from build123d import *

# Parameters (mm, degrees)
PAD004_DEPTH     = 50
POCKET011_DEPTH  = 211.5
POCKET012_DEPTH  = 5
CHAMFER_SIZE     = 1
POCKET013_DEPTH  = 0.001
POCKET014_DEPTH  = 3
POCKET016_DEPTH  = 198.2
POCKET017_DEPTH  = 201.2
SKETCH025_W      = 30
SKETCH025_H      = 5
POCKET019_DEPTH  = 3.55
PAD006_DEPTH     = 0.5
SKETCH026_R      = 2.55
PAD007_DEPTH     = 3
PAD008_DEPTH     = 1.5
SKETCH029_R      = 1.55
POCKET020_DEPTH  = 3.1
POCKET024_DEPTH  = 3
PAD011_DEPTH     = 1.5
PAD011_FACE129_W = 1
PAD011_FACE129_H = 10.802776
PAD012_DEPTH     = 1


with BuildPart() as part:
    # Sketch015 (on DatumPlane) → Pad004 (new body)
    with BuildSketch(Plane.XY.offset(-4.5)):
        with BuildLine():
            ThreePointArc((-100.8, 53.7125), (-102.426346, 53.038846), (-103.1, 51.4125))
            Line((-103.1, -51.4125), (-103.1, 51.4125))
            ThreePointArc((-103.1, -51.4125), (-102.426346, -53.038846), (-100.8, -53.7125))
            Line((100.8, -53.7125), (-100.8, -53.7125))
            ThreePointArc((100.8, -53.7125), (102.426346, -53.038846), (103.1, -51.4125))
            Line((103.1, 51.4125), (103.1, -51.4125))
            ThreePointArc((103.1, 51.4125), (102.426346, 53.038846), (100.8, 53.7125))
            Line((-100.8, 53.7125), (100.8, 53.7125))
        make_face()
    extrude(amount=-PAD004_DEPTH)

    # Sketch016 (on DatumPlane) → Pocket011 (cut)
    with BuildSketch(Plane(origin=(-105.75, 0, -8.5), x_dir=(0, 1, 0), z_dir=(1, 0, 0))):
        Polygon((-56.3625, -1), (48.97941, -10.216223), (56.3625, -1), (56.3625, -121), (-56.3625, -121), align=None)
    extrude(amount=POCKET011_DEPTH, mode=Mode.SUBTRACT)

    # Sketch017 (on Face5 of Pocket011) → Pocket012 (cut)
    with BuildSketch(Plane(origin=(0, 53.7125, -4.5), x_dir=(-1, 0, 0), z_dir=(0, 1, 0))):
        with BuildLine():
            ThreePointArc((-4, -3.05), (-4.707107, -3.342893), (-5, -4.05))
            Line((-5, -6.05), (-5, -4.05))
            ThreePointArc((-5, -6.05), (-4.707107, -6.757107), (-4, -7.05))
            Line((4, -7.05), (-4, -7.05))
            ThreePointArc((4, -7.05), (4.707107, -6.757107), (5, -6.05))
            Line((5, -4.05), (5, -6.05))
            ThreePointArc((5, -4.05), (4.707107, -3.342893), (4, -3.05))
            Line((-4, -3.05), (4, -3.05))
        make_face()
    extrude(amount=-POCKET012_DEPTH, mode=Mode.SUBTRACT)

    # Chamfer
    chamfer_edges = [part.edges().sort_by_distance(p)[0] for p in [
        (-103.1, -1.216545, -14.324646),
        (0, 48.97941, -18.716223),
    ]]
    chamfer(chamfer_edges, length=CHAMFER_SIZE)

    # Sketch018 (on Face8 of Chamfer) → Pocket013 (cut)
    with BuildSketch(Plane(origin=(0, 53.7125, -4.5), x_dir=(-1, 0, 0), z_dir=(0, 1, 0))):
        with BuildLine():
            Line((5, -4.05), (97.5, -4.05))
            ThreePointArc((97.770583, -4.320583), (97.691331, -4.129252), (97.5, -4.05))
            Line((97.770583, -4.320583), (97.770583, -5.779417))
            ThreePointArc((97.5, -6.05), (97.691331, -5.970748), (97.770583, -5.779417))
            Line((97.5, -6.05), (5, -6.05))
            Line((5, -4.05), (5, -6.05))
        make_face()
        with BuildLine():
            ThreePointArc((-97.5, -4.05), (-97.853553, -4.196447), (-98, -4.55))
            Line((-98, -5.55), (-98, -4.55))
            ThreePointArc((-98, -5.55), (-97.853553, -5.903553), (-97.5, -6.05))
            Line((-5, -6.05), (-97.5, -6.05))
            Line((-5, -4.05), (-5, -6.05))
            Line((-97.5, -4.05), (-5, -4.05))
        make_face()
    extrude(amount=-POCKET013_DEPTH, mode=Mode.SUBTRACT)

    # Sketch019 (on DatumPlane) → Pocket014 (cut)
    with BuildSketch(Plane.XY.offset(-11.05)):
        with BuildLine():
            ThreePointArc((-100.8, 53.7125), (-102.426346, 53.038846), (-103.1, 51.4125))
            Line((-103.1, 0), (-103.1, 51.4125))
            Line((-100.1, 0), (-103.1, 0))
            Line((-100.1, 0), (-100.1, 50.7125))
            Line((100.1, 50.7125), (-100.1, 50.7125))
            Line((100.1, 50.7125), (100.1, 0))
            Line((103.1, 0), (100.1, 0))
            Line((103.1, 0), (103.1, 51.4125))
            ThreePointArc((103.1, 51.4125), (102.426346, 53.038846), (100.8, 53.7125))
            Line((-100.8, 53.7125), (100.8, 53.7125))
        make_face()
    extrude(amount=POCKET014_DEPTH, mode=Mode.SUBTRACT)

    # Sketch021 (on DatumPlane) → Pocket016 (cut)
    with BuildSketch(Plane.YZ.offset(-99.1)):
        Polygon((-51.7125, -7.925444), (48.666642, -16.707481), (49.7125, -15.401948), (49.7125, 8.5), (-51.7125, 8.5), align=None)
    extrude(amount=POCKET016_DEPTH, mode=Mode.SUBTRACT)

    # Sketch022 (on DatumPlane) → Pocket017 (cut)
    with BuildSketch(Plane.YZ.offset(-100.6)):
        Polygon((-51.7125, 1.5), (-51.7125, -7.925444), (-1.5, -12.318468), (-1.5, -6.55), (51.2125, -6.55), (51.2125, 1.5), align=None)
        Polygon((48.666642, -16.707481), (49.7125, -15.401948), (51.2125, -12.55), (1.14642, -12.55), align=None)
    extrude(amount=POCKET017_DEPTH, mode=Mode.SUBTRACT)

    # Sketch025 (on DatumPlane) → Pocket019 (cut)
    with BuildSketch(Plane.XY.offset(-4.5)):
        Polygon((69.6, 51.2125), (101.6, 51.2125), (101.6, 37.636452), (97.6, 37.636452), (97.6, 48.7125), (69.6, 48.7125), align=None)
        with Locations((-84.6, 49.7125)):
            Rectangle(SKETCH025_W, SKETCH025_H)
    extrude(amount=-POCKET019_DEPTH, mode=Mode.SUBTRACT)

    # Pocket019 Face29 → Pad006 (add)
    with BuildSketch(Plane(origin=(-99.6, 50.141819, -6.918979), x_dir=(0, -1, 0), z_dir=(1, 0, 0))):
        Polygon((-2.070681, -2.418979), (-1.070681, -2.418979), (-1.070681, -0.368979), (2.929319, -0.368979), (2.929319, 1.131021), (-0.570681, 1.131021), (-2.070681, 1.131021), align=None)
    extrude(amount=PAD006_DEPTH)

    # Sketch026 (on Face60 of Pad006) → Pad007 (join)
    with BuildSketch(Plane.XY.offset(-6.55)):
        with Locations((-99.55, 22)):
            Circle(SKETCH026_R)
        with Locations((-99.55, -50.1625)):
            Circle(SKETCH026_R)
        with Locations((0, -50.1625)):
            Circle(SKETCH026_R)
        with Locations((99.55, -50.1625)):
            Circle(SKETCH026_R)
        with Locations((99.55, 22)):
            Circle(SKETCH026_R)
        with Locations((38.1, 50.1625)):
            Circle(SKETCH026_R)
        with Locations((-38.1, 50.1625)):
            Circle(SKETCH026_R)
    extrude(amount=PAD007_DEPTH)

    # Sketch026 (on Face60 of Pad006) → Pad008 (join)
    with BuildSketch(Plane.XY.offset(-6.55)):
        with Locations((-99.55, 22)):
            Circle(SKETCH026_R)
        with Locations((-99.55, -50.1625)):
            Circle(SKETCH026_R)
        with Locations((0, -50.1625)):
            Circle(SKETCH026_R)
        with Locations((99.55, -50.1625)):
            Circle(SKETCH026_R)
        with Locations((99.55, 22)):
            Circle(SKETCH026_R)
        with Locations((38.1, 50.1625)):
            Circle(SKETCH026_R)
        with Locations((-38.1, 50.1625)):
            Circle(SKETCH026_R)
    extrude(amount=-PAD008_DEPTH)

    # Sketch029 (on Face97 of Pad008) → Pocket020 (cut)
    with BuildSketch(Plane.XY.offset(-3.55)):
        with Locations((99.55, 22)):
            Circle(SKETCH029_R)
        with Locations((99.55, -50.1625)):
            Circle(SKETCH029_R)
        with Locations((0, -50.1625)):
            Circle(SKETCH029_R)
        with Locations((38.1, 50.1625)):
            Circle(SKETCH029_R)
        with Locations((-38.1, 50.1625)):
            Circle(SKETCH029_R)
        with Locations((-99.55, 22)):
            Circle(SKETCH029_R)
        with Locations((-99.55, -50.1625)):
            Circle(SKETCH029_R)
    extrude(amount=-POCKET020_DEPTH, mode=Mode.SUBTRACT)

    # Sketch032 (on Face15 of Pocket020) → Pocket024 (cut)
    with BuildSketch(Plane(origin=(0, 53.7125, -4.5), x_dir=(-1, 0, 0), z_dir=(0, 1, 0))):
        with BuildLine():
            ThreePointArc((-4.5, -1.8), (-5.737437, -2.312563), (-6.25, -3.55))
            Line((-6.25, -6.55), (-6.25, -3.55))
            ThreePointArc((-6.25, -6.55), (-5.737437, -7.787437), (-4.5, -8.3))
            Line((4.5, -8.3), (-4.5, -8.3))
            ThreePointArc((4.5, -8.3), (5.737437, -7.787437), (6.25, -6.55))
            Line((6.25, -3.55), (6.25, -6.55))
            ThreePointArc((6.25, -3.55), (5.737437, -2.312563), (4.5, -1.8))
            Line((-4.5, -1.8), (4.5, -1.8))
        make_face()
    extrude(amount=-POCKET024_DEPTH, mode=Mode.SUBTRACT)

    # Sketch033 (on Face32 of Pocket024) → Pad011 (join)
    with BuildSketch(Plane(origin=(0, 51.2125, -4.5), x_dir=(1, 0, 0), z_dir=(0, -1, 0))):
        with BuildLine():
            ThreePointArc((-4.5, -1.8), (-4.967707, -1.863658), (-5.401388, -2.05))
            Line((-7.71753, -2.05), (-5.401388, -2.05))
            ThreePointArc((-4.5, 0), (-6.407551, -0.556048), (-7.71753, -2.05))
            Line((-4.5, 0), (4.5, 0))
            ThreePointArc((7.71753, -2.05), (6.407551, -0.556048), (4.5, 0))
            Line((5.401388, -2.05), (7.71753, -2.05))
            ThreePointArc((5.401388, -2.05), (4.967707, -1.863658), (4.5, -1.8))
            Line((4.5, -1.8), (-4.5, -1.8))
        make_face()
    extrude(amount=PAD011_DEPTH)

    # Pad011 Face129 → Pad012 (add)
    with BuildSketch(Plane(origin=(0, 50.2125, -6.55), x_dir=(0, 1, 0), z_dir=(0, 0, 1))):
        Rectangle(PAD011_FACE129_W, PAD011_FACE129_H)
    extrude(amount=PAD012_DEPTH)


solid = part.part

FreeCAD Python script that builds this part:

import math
import FreeCAD as App
import Part
import Sketcher

V = App.Vector
Q = App.Units.Quantity


def edges_at(feature, points):
    """Names of the edges that pass closest to the given points."""
    edges = feature.Shape.Edges
    near = lambda p: min(range(len(edges)), key=lambda i: edges[i].distToShape(Part.Vertex(*p))[0])
    return sorted({f"Edge{near(p) + 1}" for p in points})

doc = App.newDocument("Part")
params = doc.addObject("Spreadsheet::Sheet", "Params")
for row, (alias, value) in enumerate([
    ("sketch1_radius", "2.299999 mm"),
    ("sketch1_width", "201.6 mm"),
    ("pad1_length", "50 mm"),
    ("sketch2_height", "120 mm"),
    ("pocket1_length", "211.5 mm"),
    ("sketch3_radius", "0.999999 mm"),
    ("sketch3_width", "8 mm"),
    ("sketch3_height", "2 mm"),
    ("pocket2_length", "5 mm"),
    ("chamfer_size", "1 mm"),
    ("sketch4_radius", "0.500001 mm"),
    ("sketch4_height", "2 mm"),
    ("sketch4_height2", "1 mm"),
    ("sketch4_width", "92.5 mm"),
    ("pocket3_length", "0.001 mm"),
    ("sketch5_radius", "2.299999 mm"),
    ("sketch5_width", "3 mm"),
    ("sketch5_width2", "200.2 mm"),
    ("pocket4_length", "3 mm"),
    ("pocket5_length", "198.2 mm"),
    ("sketch7_height", "8.05 mm"),
    ("pocket6_length", "201.2 mm"),
    ("sketch8_width", "32 mm"),
    ("sketch8_width2", "28 mm"),
    ("sketch8_width3", "30 mm"),
    ("sketch8_height", "5 mm"),
    ("sketch8_height2", "2.5 mm"),
    ("pocket7_length", "3.55 mm"),
    ("sketch9_width", "1 mm"),
    ("sketch9_width2", "4 mm"),
    ("sketch9_height", "1.5 mm"),
    ("sketch9_height2", "2.05 mm"),
    ("pad2_length", "0.5 mm"),
    ("sketch10_diameter", "5.1 mm"),
    ("pad3_length", "3 mm"),
    ("sketch11_diameter", "5.1 mm"),
    ("pad4_length", "1.5 mm"),
    ("sketch12_diameter", "3.1 mm"),
    ("pocket8_length", "3.1 mm"),
    ("sketch13_width", "9 mm"),
    ("sketch13_height", "3 mm"),
    ("sketch13_radius", "1.75 mm"),
    ("pocket9_length", "3 mm"),
    ("sketch14_width", "9 mm"),
    ("sketch14_radius", "3.55 mm"),
    ("pad5_length", "1.5 mm"),
    ("sketch15_height", "1 mm"),
    ("pad6_length", "1 mm"),
], start=1):
    params.set(f"A{row}", alias)
    params.set(f"B{row}", "=" + value)
    params.setAlias(f"B{row}", alias)

body = doc.addObject("PartDesign::Body", "Body")

sketch1 = body.newObject("Sketcher::SketchObject", "Sketch")
sketch1.AttachmentSupport = (doc.getObject("XY_Plane"), [""])
sketch1.MapMode = "FlatFace"
sketch1.AttachmentOffset = App.Placement(V(0, 0, -4.5), App.Rotation())
sketch1.addGeometry([
    Part.ArcOfCircle(Part.Circle(V(-100.800001, 51.412501, 0), V(0, 0, 1), 2.299999), math.radians(89.999966), math.radians(180.000034)),
    Part.LineSegment(V(-103.1, 51.4125, 0), V(-103.1, -51.4125, 0)),
    Part.ArcOfCircle(Part.Circle(V(-100.800001, -51.412501, 0), V(0, 0, 1), 2.299999), math.radians(179.999966), math.radians(270.000034)),
    Part.LineSegment(V(-100.8, -53.7125, 0), V(100.8, -53.7125, 0)),
    Part.ArcOfCircle(Part.Circle(V(100.800001, -51.412501, 0), V(0, 0, 1), 2.299999), math.radians(-90.000034), math.radians(0.000034)),
    Part.LineSegment(V(103.1, -51.4125, 0), V(103.1, 51.4125, 0)),
    Part.ArcOfCircle(Part.Circle(V(100.800001, 51.412501, 0), V(0, 0, 1), 2.299999), math.radians(-0.000034), math.radians(90.000034)),
    Part.LineSegment(V(100.8, 53.7125, 0), V(-100.8, 53.7125, 0)),
], False)
sketch1.addConstraint([
    Sketcher.Constraint("Tangent", 0, 2, 1, 1),
    Sketcher.Constraint("Tangent", 1, 2, 2, 1),
    Sketcher.Constraint("Tangent", 2, 2, 3, 1),
    Sketcher.Constraint("Tangent", 3, 2, 4, 1),
    Sketcher.Constraint("Tangent", 4, 2, 5, 1),
    Sketcher.Constraint("Tangent", 5, 2, 6, 1),
    Sketcher.Constraint("Tangent", 6, 2, 7, 1),
    Sketcher.Constraint("Tangent", 7, 2, 0, 1),
    Sketcher.Constraint("Vertical", 1),
    Sketcher.Constraint("Horizontal", 3),
    Sketcher.Constraint("Vertical", 5),
    Sketcher.Constraint("Horizontal", 7),
    Sketcher.Constraint("Equal", 0, 2),
    Sketcher.Constraint("Equal", 2, 4),
    Sketcher.Constraint("Equal", 4, 6),
    Sketcher.Constraint("Symmetric", 0, 3, 4, 3, -1, 1),
    Sketcher.Constraint("Radius", 0, Q("2.299999 mm")),
    Sketcher.Constraint("DistanceX", 3, 1, 3, 2, Q("201.6 mm")),
    Sketcher.Constraint("DistanceY", 1, 2, 1, 1, Q("102.825 mm")),
])
sketch1.setExpression("Constraints[16]", "Params.sketch1_radius")
sketch1.setExpression("Constraints[17]", "Params.sketch1_width")
pad1 = body.newObject("PartDesign::Pad", "Pad")
pad1.Profile = sketch1
pad1.setExpression("Length", "Params.pad1_length")
pad1.Reversed = True

sketch2 = body.newObject("Sketcher::SketchObject", "Sketch001")
sketch2.AttachmentSupport = (doc.getObject("YZ_Plane"), [""])
sketch2.MapMode = "FlatFace"
sketch2.AttachmentOffset = App.Placement(V(0, 0, -105.75), App.Rotation())
sketch2.addGeometry([
    Part.LineSegment(V(48.97941, -18.716223, 0), V(-56.3625, -9.5, 0)),
    Part.LineSegment(V(-56.3625, -9.5, 0), V(-56.3625, -129.5, 0)),
    Part.LineSegment(V(-56.3625, -129.5, 0), V(56.3625, -129.5, 0)),
    Part.LineSegment(V(56.3625, -129.5, 0), V(56.3625, -9.5, 0)),
    Part.LineSegment(V(56.3625, -9.5, 0), V(48.97941, -18.716223, 0)),
], False)
sketch2.addConstraint([
    Sketcher.Constraint("Coincident", 0, 2, 1, 1),
    Sketcher.Constraint("Coincident", 1, 2, 2, 1),
    Sketcher.Constraint("Coincident", 2, 2, 3, 1),
    Sketcher.Constraint("Coincident", 3, 2, 4, 1),
    Sketcher.Constraint("Coincident", 4, 2, 0, 1),
    Sketcher.Constraint("Vertical", 1),
    Sketcher.Constraint("Horizontal", 2),
    Sketcher.Constraint("Vertical", 3),
    Sketcher.Constraint("Symmetric", 0, 2, 3, 2, -2),
    Sketcher.Constraint("DistanceY", 1, 2, 1, 1, Q("120 mm")),
    Sketcher.Constraint("Angle", 0, Q("175 deg")),
    Sketcher.Constraint("DistanceY", 0, 2, -1, 1, Q("9.5 mm")),
    Sketcher.Constraint("DistanceX", 2, 1, 2, 2, Q("112.725 mm")),
    Sketcher.Constraint("Distance", 0, Q("105.744299 mm")),
])
sketch2.setExpression("Constraints[9]", "Params.sketch2_height")
pocket1 = body.newObject("PartDesign::Pocket", "Pocket")
pocket1.Profile = sketch2
pocket1.setExpression("Length", "Params.pocket1_length")
pocket1.Reversed = True

sketch3 = body.newObject("Sketcher::SketchObject", "Sketch002")
sketch3.AttachmentSupport = (doc.getObject("XZ_Plane"), [""])
sketch3.MapMode = "FlatFace"
sketch3.AttachmentOffset = App.Placement(V(0, 0, -53.7125), App.Rotation())
sketch3.addGeometry([
    Part.ArcOfCircle(Part.Circle(V(4.000001, -8.549999, 0), V(0, 0, 1), 0.999999), math.radians(-0.000043), math.radians(90.000043)),
    Part.LineSegment(V(5, -8.55, 0), V(5, -10.55, 0)),
    Part.ArcOfCircle(Part.Circle(V(4.000001, -10.550001, 0), V(0, 0, 1), 0.999999), math.radians(-90.000043), math.radians(0.000043)),
    Part.LineSegment(V(4, -11.55, 0), V(-4, -11.55, 0)),
    Part.ArcOfCircle(Part.Circle(V(-4.000001, -10.550001, 0), V(0, 0, 1), 0.999999), math.radians(179.999957), math.radians(270.000043)),
    Part.LineSegment(V(-5, -10.55, 0), V(-5, -8.55, 0)),
    Part.ArcOfCircle(Part.Circle(V(-4.000001, -8.549999, 0), V(0, 0, 1), 0.999999), math.radians(89.999957), math.radians(180.000043)),
    Part.LineSegment(V(-4, -7.55, 0), V(4, -7.55, 0)),
], False)
sketch3.addConstraint([
    Sketcher.Constraint("Tangent", 0, 1, 1, 1),
    Sketcher.Constraint("Tangent", 1, 2, 2, 2),
    Sketcher.Constraint("Tangent", 2, 1, 3, 1),
    Sketcher.Constraint("Tangent", 3, 2, 4, 2),
    Sketcher.Constraint("Tangent", 4, 1, 5, 1),
    Sketcher.Constraint("Tangent", 5, 2, 6, 2),
    Sketcher.Constraint("Tangent", 6, 1, 7, 1),
    Sketcher.Constraint("Tangent", 7, 2, 0, 2),
    Sketcher.Constraint("Vertical", 1),
    Sketcher.Constraint("Horizontal", 3),
    Sketcher.Constraint("Vertical", 5),
    Sketcher.Constraint("Horizontal", 7),
    Sketcher.Constraint("Equal", 0, 2),
    Sketcher.Constraint("Equal", 2, 4),
    Sketcher.Constraint("Equal", 4, 6),
    Sketcher.Constraint("Radius", 0, Q("0.999999 mm")),
    Sketcher.Constraint("DistanceX", 3, 2, 3, 1, Q("8 mm")),
    Sketcher.Constraint("DistanceY", 1, 2, 1, 1, Q("2 mm")),
    Sketcher.Constraint("DistanceX", -1, 1, 0, 3, Q("4.000001 mm")),
    Sketcher.Constraint("DistanceY", 0, 3, -1, 1, Q("8.549999 mm")),
])
sketch3.setExpression("Constraints[15]", "Params.sketch3_radius")
sketch3.setExpression("Constraints[16]", "Params.sketch3_width")
sketch3.setExpression("Constraints[17]", "Params.sketch3_height")
pocket2 = body.newObject("PartDesign::Pocket", "Pocket001")
pocket2.Profile = sketch3
pocket2.setExpression("Length", "Params.pocket2_length")
pocket2.Reversed = True
doc.recompute()

chamfer = body.newObject("PartDesign::Chamfer", "Chamfer")
chamfer.Base = (pocket2, edges_at(pocket2, [(-103.1, -1.217, -14.325), (0, 48.979, -18.716)]))
chamfer.setExpression("Size", "Params.chamfer_size")

sketch4 = body.newObject("Sketcher::SketchObject", "Sketch003")
sketch4.AttachmentSupport = (doc.getObject("XZ_Plane"), [""])
sketch4.MapMode = "FlatFace"
sketch4.AttachmentOffset = App.Placement(V(0, 0, -53.7125), App.Rotation())
sketch4.addGeometry([
    Part.LineSegment(V(-97.5, -8.55, 0), V(-5, -8.55, 0)),
    Part.LineSegment(V(-5, -8.55, 0), V(-5, -10.55, 0)),
    Part.LineSegment(V(-5, -10.55, 0), V(-97.5, -10.55, 0)),
    Part.ArcOfCircle(Part.Circle(V(-97.5, -10.279417, 0), V(0, 0, 1), 0.270583), math.radians(-179.999946), math.radians(-90.000054)),
    Part.LineSegment(V(-97.770583, -10.279417, 0), V(-97.770583, -8.820583, 0)),
    Part.ArcOfCircle(Part.Circle(V(-97.5, -8.820583, 0), V(0, 0, 1), 0.270583), math.radians(90.000054), math.radians(179.999946)),
    Part.ArcOfCircle(Part.Circle(V(97.499999, -9.050001, 0), V(0, 0, 1), 0.500001), math.radians(0.000153), math.radians(89.999847)),
    Part.LineSegment(V(98, -9.05, 0), V(98, -10.05, 0)),
    Part.ArcOfCircle(Part.Circle(V(97.499999, -10.049999, 0), V(0, 0, 1), 0.500001), math.radians(-89.999847), math.radians(-0.000153)),
    Part.LineSegment(V(97.5, -10.55, 0), V(5, -10.55, 0)),
    Part.LineSegment(V(5, -10.55, 0), V(5, -8.55, 0)),
    Part.LineSegment(V(5, -8.55, 0), V(97.5, -8.55, 0)),
], False)
sketch4.addConstraint([
    Sketcher.Constraint("Coincident", 0, 2, 1, 1),
    Sketcher.Constraint("Coincident", 1, 2, 2, 1),
    Sketcher.Constraint("Tangent", 2, 2, 3, 2),
    Sketcher.Constraint("Tangent", 3, 1, 4, 1),
    Sketcher.Constraint("Tangent", 4, 2, 5, 2),
    Sketcher.Constraint("Tangent", 5, 1, 0, 1),
    Sketcher.Constraint("Coincident", 6, 1, 7, 1),
    Sketcher.Constraint("Coincident", 7, 2, 8, 2),
    Sketcher.Constraint("Coincident", 8, 1, 9, 1),
    Sketcher.Constraint("Coincident", 9, 2, 10, 1),
    Sketcher.Constraint("Coincident", 10, 2, 11, 1),
    Sketcher.Constraint("Coincident", 11, 2, 6, 2),
    Sketcher.Constraint("Horizontal", 0),
    Sketcher.Constraint("Vertical", 1),
    Sketcher.Constraint("Horizontal", 2),
    Sketcher.Constraint("Vertical", 4),
    Sketcher.Constraint("Vertical", 7),
    Sketcher.Constraint("Horizontal", 9),
    Sketcher.Constraint("Vertical", 10),
    Sketcher.Constraint("Horizontal", 11),
    Sketcher.Constraint("Equal", 3, 5),
    Sketcher.Constraint("Equal", 6, 8),
    Sketcher.Constraint("Symmetric", 2, 2, 8, 1, -2),
    Sketcher.Constraint("Symmetric", 0, 2, 10, 2, -2),
    Sketcher.Constraint("Horizontal", 8, 3, 7, 2),
    Sketcher.Constraint("Vertical", 6, 3, 8, 1),
    Sketcher.Constraint("Vertical", 8, 1, 11, 2),
    Sketcher.Constraint("Radius", 6, Q("0.500001 mm")),
    Sketcher.Constraint("DistanceY", 1, 2, 1, 1, Q("2 mm")),
    Sketcher.Constraint("DistanceY", 7, 2, 7, 1, Q("1 mm")),
    Sketcher.Constraint("DistanceX", 0, 1, 0, 2, Q("92.5 mm")),
    Sketcher.Constraint("DistanceX", 0, 2, -1, 1, Q("5 mm")),
    Sketcher.Constraint("DistanceY", 6, 3, -1, 1, Q("9.050001 mm")),
    Sketcher.Constraint("Radius", 3, Q("0.270583 mm")),
])
sketch4.setExpression("Constraints[27]", "Params.sketch4_radius")
sketch4.setExpression("Constraints[28]", "Params.sketch4_height")
sketch4.setExpression("Constraints[29]", "Params.sketch4_height2")
sketch4.setExpression("Constraints[30]", "Params.sketch4_width")
pocket3 = body.newObject("PartDesign::Pocket", "Pocket002")
pocket3.Profile = sketch4
pocket3.setExpression("Length", "Params.pocket3_length")
pocket3.Reversed = True

sketch5 = body.newObject("Sketcher::SketchObject", "Sketch004")
sketch5.AttachmentSupport = (doc.getObject("XY_Plane"), [""])
sketch5.MapMode = "FlatFace"
sketch5.AttachmentOffset = App.Placement(V(0, 0, -11.05), App.Rotation())
sketch5.addGeometry([
    Part.ArcOfCircle(Part.Circle(V(-100.800001, 51.412501, 0), V(0, 0, 1), 2.299999), math.radians(89.999966), math.radians(180.000034)),
    Part.LineSegment(V(-103.1, 51.4125, 0), V(-103.1, 0, 0)),
    Part.LineSegment(V(-103.1, 0, 0), V(-100.1, 0, 0)),
    Part.LineSegment(V(-100.1, 0, 0), V(-100.1, 50.7125, 0)),
    Part.LineSegment(V(-100.1, 50.7125, 0), V(100.1, 50.7125, 0)),
    Part.LineSegment(V(100.1, 50.7125, 0), V(100.1, 0, 0)),
    Part.LineSegment(V(100.1, 0, 0), V(103.1, 0, 0)),
    Part.LineSegment(V(103.1, 0, 0), V(103.1, 51.4125, 0)),
    Part.ArcOfCircle(Part.Circle(V(100.800001, 51.412501, 0), V(0, 0, 1), 2.299999), math.radians(-0.000034), math.radians(90.000034)),
    Part.LineSegment(V(100.8, 53.7125, 0), V(-100.8, 53.7125, 0)),
], False)
sketch5.addConstraint([
    Sketcher.Constraint("Tangent", 0, 2, 1, 1),
    Sketcher.Constraint("Coincident", 1, 2, 2, 1),
    Sketcher.Constraint("Coincident", 2, 2, 3, 1),
    Sketcher.Constraint("Coincident", 3, 2, 4, 1),
    Sketcher.Constraint("Coincident", 4, 2, 5, 1),
    Sketcher.Constraint("Coincident", 5, 2, 6, 1),
    Sketcher.Constraint("Coincident", 6, 2, 7, 1),
    Sketcher.Constraint("Tangent", 7, 2, 8, 1),
    Sketcher.Constraint("Tangent", 8, 2, 9, 1),
    Sketcher.Constraint("Tangent", 9, 2, 0, 1),
    Sketcher.Constraint("Vertical", 1),
    Sketcher.Constraint("Horizontal", 2),
    Sketcher.Constraint("Vertical", 3),
    Sketcher.Constraint("Horizontal", 4),
    Sketcher.Constraint("Vertical", 5),
    Sketcher.Constraint("Horizontal", 6),
    Sketcher.Constraint("Vertical", 7),
    Sketcher.Constraint("Horizontal", 9),
    Sketcher.Constraint("Equal", 0, 8),
    Sketcher.Constraint("Symmetric", 2, 2, 5, 2, -1, 1),
    Sketcher.Constraint("Symmetric", 1, 2, 6, 2, -2),
    Sketcher.Constraint("Radius", 0, Q("2.299999 mm")),
    Sketcher.Constraint("DistanceX", 2, 1, 2, 2, Q("3 mm")),
    Sketcher.Constraint("DistanceX", 4, 1, 4, 2, Q("200.2 mm")),
    Sketcher.Constraint("DistanceY", 4, 2, 8, 2, Q("3 mm")),
    Sketcher.Constraint("DistanceY", 1, 2, 1, 1, Q("51.4125 mm")),
])
sketch5.setExpression("Constraints[21]", "Params.sketch5_radius")
sketch5.setExpression("Constraints[22]", "Params.sketch5_width")
sketch5.setExpression("Constraints[23]", "Params.sketch5_width2")
pocket4 = body.newObject("PartDesign::Pocket", "Pocket003")
pocket4.Profile = sketch5
pocket4.setExpression("Length", "Params.pocket4_length")
pocket4.Reversed = True

sketch6 = body.newObject("Sketcher::SketchObject", "Sketch005")
sketch6.AttachmentSupport = (doc.getObject("YZ_Plane"), [""])
sketch6.MapMode = "FlatFace"
sketch6.AttachmentOffset = App.Placement(V(0, 0, -99.1), App.Rotation())
sketch6.addGeometry([
    Part.LineSegment(V(-51.7125, -7.925444, 0), V(48.666642, -16.707481, 0)),
    Part.LineSegment(V(48.666642, -16.707481, 0), V(49.7125, -15.401948, 0)),
    Part.LineSegment(V(49.7125, -15.401948, 0), V(49.7125, 8.5, 0)),
    Part.LineSegment(V(49.7125, 8.5, 0), V(-51.7125, 8.5, 0)),
    Part.LineSegment(V(-51.7125, 8.5, 0), V(-51.7125, -7.925444, 0)),
], False)
sketch6.addConstraint([
    Sketcher.Constraint("Coincident", 0, 2, 1, 1),
    Sketcher.Constraint("Coincident", 1, 2, 2, 1),
    Sketcher.Constraint("Coincident", 2, 2, 3, 1),
    Sketcher.Constraint("Coincident", 3, 2, 4, 1),
    Sketcher.Constraint("Coincident", 4, 2, 0, 1),
    Sketcher.Constraint("Vertical", 2),
    Sketcher.Constraint("Horizontal", 3),
    Sketcher.Constraint("Vertical", 4),
    Sketcher.Constraint("Angle", 0, Q("-5 deg")),
    Sketcher.Constraint("DistanceY", -1, 1, 2, 2, Q("8.5 mm")),
    Sketcher.Constraint("DistanceX", 3, 2, 3, 1, Q("101.425 mm")),
    Sketcher.Constraint("DistanceY", 2, 1, 2, 2, Q("23.901948 mm")),
    Sketcher.Constraint("DistanceX", -1, 1, 1, 2, Q("49.7125 mm")),
    Sketcher.Constraint("DistanceY", 4, 2, 4, 1, Q("16.425444 mm")),
    Sketcher.Constraint("DistanceY", 0, 2, -1, 1, Q("16.707481 mm")),
])
pocket5 = body.newObject("PartDesign::Pocket", "Pocket004")
pocket5.Profile = sketch6
pocket5.setExpression("Length", "Params.pocket5_length")
pocket5.Reversed = True

sketch7 = body.newObject("Sketcher::SketchObject", "Sketch006")
sketch7.AttachmentSupport = (doc.getObject("YZ_Plane"), [""])
sketch7.MapMode = "FlatFace"
sketch7.AttachmentOffset = App.Placement(V(0, 0, -100.6), App.Rotation())
sketch7.addGeometry([
    Part.LineSegment(V(-51.7125, 1.5, 0), V(-51.7125, -7.925444, 0)),
    Part.LineSegment(V(-51.7125, -7.925444, 0), V(-1.5, -12.318468, 0)),
    Part.LineSegment(V(-1.5, -12.318468, 0), V(-1.5, -6.55, 0)),
    Part.LineSegment(V(-1.5, -6.55, 0), V(51.2125, -6.55, 0)),
    Part.LineSegment(V(51.2125, -6.55, 0), V(51.2125, 1.5, 0)),
    Part.LineSegment(V(51.2125, 1.5, 0), V(-51.7125, 1.5, 0)),
    Part.LineSegment(V(48.666642, -16.707481, 0), V(49.7125, -15.401948, 0)),
    Part.LineSegment(V(49.7125, -15.401948, 0), V(51.2125, -12.55, 0)),
    Part.LineSegment(V(51.2125, -12.55, 0), V(1.14642, -12.55, 0)),
    Part.LineSegment(V(1.14642, -12.55, 0), V(48.666642, -16.707481, 0)),
], False)
sketch7.addConstraint([
    Sketcher.Constraint("Coincident", 0, 2, 1, 1),
    Sketcher.Constraint("Coincident", 1, 2, 2, 1),
    Sketcher.Constraint("Coincident", 2, 2, 3, 1),
    Sketcher.Constraint("Coincident", 3, 2, 4, 1),
    Sketcher.Constraint("Coincident", 4, 2, 5, 1),
    Sketcher.Constraint("Coincident", 5, 2, 0, 1),
    Sketcher.Constraint("Coincident", 6, 2, 7, 1),
    Sketcher.Constraint("Coincident", 7, 2, 8, 1),
    Sketcher.Constraint("Coincident", 8, 2, 9, 1),
    Sketcher.Constraint("Coincident", 9, 2, 6, 1),
    Sketcher.Constraint("Vertical", 0),
    Sketcher.Constraint("Vertical", 2),
    Sketcher.Constraint("Horizontal", 3),
    Sketcher.Constraint("Vertical", 4),
    Sketcher.Constraint("Horizontal", 5),
    Sketcher.Constraint("Horizontal", 8),
    Sketcher.Constraint("Parallel", 1, 9),
    Sketcher.Constraint("Vertical", 4, 2, 7, 2),
    Sketcher.Constraint("Angle", 1, Q("-4.999999 deg")),
    Sketcher.Constraint("DistanceY", 7, 2, 3, 2, Q("6 mm")),
    Sketcher.Constraint("DistanceY", 4, 1, 4, 2, Q("8.05 mm")),
    Sketcher.Constraint("DistanceX", 1, 2, -1, 1, Q("1.5 mm")),
    Sketcher.Constraint("DistanceY", -1, 1, 4, 2, Q("1.5 mm")),
    Sketcher.Constraint("DistanceX", 6, 2, 3, 2, Q("1.5 mm")),
    Sketcher.Constraint("DistanceX", 5, 2, 5, 1, Q("102.925 mm")),
    Sketcher.Constraint("DistanceX", 3, 1, 3, 2, Q("52.7125 mm")),
    Sketcher.Constraint("DistanceX", 8, 2, 8, 1, Q("50.06608 mm")),
    Sketcher.Constraint("Distance", 7, Q("3.222361 mm")),
    Sketcher.Constraint("Distance", 9, Q("47.701742 mm")),
    Sketcher.Constraint("DistanceY", 0, 2, 0, 1, Q("9.425444 mm")),
])
sketch7.setExpression("Constraints[20]", "Params.sketch7_height")
pocket6 = body.newObject("PartDesign::Pocket", "Pocket005")
pocket6.Profile = sketch7
pocket6.setExpression("Length", "Params.pocket6_length")
pocket6.Reversed = True

sketch8 = body.newObject("Sketcher::SketchObject", "Sketch007")
sketch8.AttachmentSupport = (doc.getObject("XY_Plane"), [""])
sketch8.MapMode = "FlatFace"
sketch8.AttachmentOffset = App.Placement(V(0, 0, -4.5), App.Rotation())
sketch8.addGeometry([
    Part.LineSegment(V(101.6, 51.2125, 0), V(69.6, 51.2125, 0)),
    Part.LineSegment(V(69.6, 51.2125, 0), V(69.6, 48.7125, 0)),
    Part.LineSegment(V(69.6, 48.7125, 0), V(97.6, 48.7125, 0)),
    Part.LineSegment(V(97.6, 48.7125, 0), V(97.6, 37.636452, 0)),
    Part.LineSegment(V(97.6, 37.636452, 0), V(101.6, 37.636452, 0)),
    Part.LineSegment(V(101.6, 37.636452, 0), V(101.6, 51.2125, 0)),
    Part.LineSegment(V(-99.6, 52.2125, 0), V(-99.6, 47.2125, 0)),
    Part.LineSegment(V(-99.6, 47.2125, 0), V(-69.6, 47.2125, 0)),
    Part.LineSegment(V(-69.6, 47.2125, 0), V(-69.6, 52.2125, 0)),
    Part.LineSegment(V(-69.6, 52.2125, 0), V(-99.6, 52.2125, 0)),
], False)
sketch8.addConstraint([
    Sketcher.Constraint("Coincident", 0, 2, 1, 1),
    Sketcher.Constraint("Coincident", 1, 2, 2, 1),
    Sketcher.Constraint("Coincident", 2, 2, 3, 1),
    Sketcher.Constraint("Coincident", 3, 2, 4, 1),
    Sketcher.Constraint("Coincident", 4, 2, 5, 1),
    Sketcher.Constraint("Coincident", 5, 2, 0, 1),
    Sketcher.Constraint("Coincident", 6, 2, 7, 1),
    Sketcher.Constraint("Coincident", 7, 2, 8, 1),
    Sketcher.Constraint("Coincident", 8, 2, 9, 1),
    Sketcher.Constraint("Coincident", 9, 2, 6, 1),
    Sketcher.Constraint("Horizontal", 0),
    Sketcher.Constraint("Vertical", 1),
    Sketcher.Constraint("Horizontal", 2),
    Sketcher.Constraint("Vertical", 3),
    Sketcher.Constraint("Horizontal", 4),
    Sketcher.Constraint("Vertical", 5),
    Sketcher.Constraint("Vertical", 6),
    Sketcher.Constraint("Horizontal", 7),
    Sketcher.Constraint("Vertical", 8),
    Sketcher.Constraint("Horizontal", 9),
    Sketcher.Constraint("DistanceX", 0, 2, 0, 1, Q("32 mm")),
    Sketcher.Constraint("DistanceX", 2, 1, 2, 2, Q("28 mm")),
    Sketcher.Constraint("DistanceX", 7, 1, 7, 2, Q("30 mm")),
    Sketcher.Constraint("DistanceY", 6, 2, 6, 1, Q("5 mm")),
    Sketcher.Constraint("DistanceY", 1, 2, 1, 1, Q("2.5 mm")),
    Sketcher.Constraint("DistanceY", 6, 2, 0, 2, Q("4 mm")),
    Sketcher.Constraint("DistanceX", -1, 1, 0, 2, Q("69.6 mm")),
    Sketcher.Constraint("DistanceX", 6, 2, -1, 1, Q("99.6 mm")),
    Sketcher.Constraint("DistanceY", -1, 1, 0, 2, Q("51.2125 mm")),
    Sketcher.Constraint("DistanceY", 3, 2, 3, 1, Q("11.076048 mm")),
])
sketch8.setExpression("Constraints[20]", "Params.sketch8_width")
sketch8.setExpression("Constraints[21]", "Params.sketch8_width2")
sketch8.setExpression("Constraints[22]", "Params.sketch8_width3")
sketch8.setExpression("Constraints[23]", "Params.sketch8_height")
sketch8.setExpression("Constraints[24]", "Params.sketch8_height2")
pocket7 = body.newObject("PartDesign::Pocket", "Pocket006")
pocket7.Profile = sketch8
pocket7.setExpression("Length", "Params.pocket7_length")

sketch9 = body.newObject("Sketcher::SketchObject", "Sketch008")
sketch9.AttachmentSupport = (doc.getObject("YZ_Plane"), [""])
sketch9.MapMode = "FlatFace"
sketch9.AttachmentOffset = App.Placement(V(0, 0, -99.6), App.Rotation())
sketch9.addGeometry([
    Part.LineSegment(V(52.2125, -4.5, 0), V(51.2125, -4.5, 0)),
    Part.LineSegment(V(51.2125, -4.5, 0), V(51.2125, -6.55, 0)),
    Part.LineSegment(V(51.2125, -6.55, 0), V(47.2125, -6.55, 0)),
    Part.LineSegment(V(47.2125, -6.55, 0), V(47.2125, -8.05, 0)),
    Part.LineSegment(V(47.2125, -8.05, 0), V(52.2125, -8.05, 0)),
    Part.LineSegment(V(52.2125, -8.05, 0), V(52.2125, -4.5, 0)),
], False)
sketch9.addConstraint([
    Sketcher.Constraint("Coincident", 0, 2, 1, 1),
    Sketcher.Constraint("Coincident", 1, 2, 2, 1),
    Sketcher.Constraint("Coincident", 2, 2, 3, 1),
    Sketcher.Constraint("Coincident", 3, 2, 4, 1),
    Sketcher.Constraint("Coincident", 4, 2, 5, 1),
    Sketcher.Constraint("Coincident", 5, 2, 0, 1),
    Sketcher.Constraint("Horizontal", 0),
    Sketcher.Constraint("Vertical", 1),
    Sketcher.Constraint("Horizontal", 2),
    Sketcher.Constraint("Vertical", 3),
    Sketcher.Constraint("Horizontal", 4),
    Sketcher.Constraint("Vertical", 5),
    Sketcher.Constraint("DistanceX", 0, 2, 0, 1, Q("1 mm")),
    Sketcher.Constraint("DistanceX", 2, 2, 2, 1, Q("4 mm")),
    Sketcher.Constraint("DistanceY", 3, 2, 3, 1, Q("1.5 mm")),
    Sketcher.Constraint("DistanceY", 1, 2, 1, 1, Q("2.05 mm")),
    Sketcher.Constraint("DistanceY", 0, 2, -1, 1, Q("4.5 mm")),
    Sketcher.Constraint("DistanceX", -1, 1, 0, 2, Q("51.2125 mm")),
])
sketch9.setExpression("Constraints[12]", "Params.sketch9_width")
sketch9.setExpression("Constraints[13]", "Params.sketch9_width2")
sketch9.setExpression("Constraints[14]", "Params.sketch9_height")
sketch9.setExpression("Constraints[15]", "Params.sketch9_height2")
pad2 = body.newObject("PartDesign::Pad", "Pad001")
pad2.Profile = sketch9
pad2.setExpression("Length", "Params.pad2_length")

sketch10 = body.newObject("Sketcher::SketchObject", "Sketch009")
sketch10.AttachmentSupport = (doc.getObject("XY_Plane"), [""])
sketch10.MapMode = "FlatFace"
sketch10.AttachmentOffset = App.Placement(V(0, 0, -6.55), App.Rotation())
sketch10.addGeometry([
    Part.Circle(V(-99.55, 22, 0), V(0, 0, 1), 2.55),
    Part.Circle(V(-99.55, -50.1625, 0), V(0, 0, 1), 2.55),
    Part.Circle(V(0, -50.1625, 0), V(0, 0, 1), 2.55),
    Part.Circle(V(99.55, -50.1625, 0), V(0, 0, 1), 2.55),
    Part.Circle(V(99.55, 22, 0), V(0, 0, 1), 2.55),
    Part.Circle(V(38.1, 50.1625, 0), V(0, 0, 1), 2.55),
    Part.Circle(V(-38.1, 50.1625, 0), V(0, 0, 1), 2.55),
], False)
sketch10.addConstraint([
    Sketcher.Constraint("Equal", 0, 1),
    Sketcher.Constraint("Equal", 1, 2),
    Sketcher.Constraint("Equal", 2, 3),
    Sketcher.Constraint("Equal", 3, 4),
    Sketcher.Constraint("Equal", 4, 5),
    Sketcher.Constraint("Equal", 5, 6),
    Sketcher.Constraint("Symmetric", 1, 3, 3, 3, -2),
    Sketcher.Constraint("Symmetric", 0, 3, 4, 3, -2),
    Sketcher.Constraint("Symmetric", 5, 3, 6, 3, -2),
    Sketcher.Constraint("PointOnObject", 2, 3, -2),
    Sketcher.Constraint("Horizontal", 1, 3, 2, 3),
    Sketcher.Constraint("Vertical", 0, 3, 1, 3),
    Sketcher.Constraint("Diameter", 0, Q("5.1 mm")),
    Sketcher.Constraint("DistanceY", -1, 1, 0, 3, Q("22 mm")),
    Sketcher.Constraint("DistanceX", -1, 1, 5, 3, Q("38.1 mm")),
    Sketcher.Constraint("DistanceX", 1, 3, 3, 3, Q("199.1 mm")),
    Sketcher.Constraint("DistanceY", 2, 3, 5, 3, Q("100.325 mm")),
    Sketcher.Constraint("DistanceY", 1, 3, -1, 1, Q("50.1625 mm")),
])
sketch10.setExpression("Constraints[12]", "Params.sketch10_diameter")
pad3 = body.newObject("PartDesign::Pad", "Pad002")
pad3.Profile = sketch10
pad3.setExpression("Length", "Params.pad3_length")

sketch11 = body.newObject("Sketcher::SketchObject", "Sketch010")
sketch11.AttachmentSupport = (doc.getObject("XY_Plane"), [""])
sketch11.MapMode = "FlatFace"
sketch11.AttachmentOffset = App.Placement(V(0, 0, -6.55), App.Rotation())
sketch11.addGeometry([
    Part.Circle(V(-99.55, 22, 0), V(0, 0, 1), 2.55),
    Part.Circle(V(-99.55, -50.1625, 0), V(0, 0, 1), 2.55),
    Part.Circle(V(0, -50.1625, 0), V(0, 0, 1), 2.55),
    Part.Circle(V(99.55, -50.1625, 0), V(0, 0, 1), 2.55),
    Part.Circle(V(99.55, 22, 0), V(0, 0, 1), 2.55),
    Part.Circle(V(38.1, 50.1625, 0), V(0, 0, 1), 2.55),
    Part.Circle(V(-38.1, 50.1625, 0), V(0, 0, 1), 2.55),
], False)
sketch11.addConstraint([
    Sketcher.Constraint("Equal", 0, 1),
    Sketcher.Constraint("Equal", 1, 2),
    Sketcher.Constraint("Equal", 2, 3),
    Sketcher.Constraint("Equal", 3, 4),
    Sketcher.Constraint("Equal", 4, 5),
    Sketcher.Constraint("Equal", 5, 6),
    Sketcher.Constraint("Symmetric", 1, 3, 3, 3, -2),
    Sketcher.Constraint("Symmetric", 0, 3, 4, 3, -2),
    Sketcher.Constraint("Symmetric", 5, 3, 6, 3, -2),
    Sketcher.Constraint("PointOnObject", 2, 3, -2),
    Sketcher.Constraint("Horizontal", 1, 3, 2, 3),
    Sketcher.Constraint("Vertical", 0, 3, 1, 3),
    Sketcher.Constraint("Diameter", 0, Q("5.1 mm")),
    Sketcher.Constraint("DistanceY", -1, 1, 0, 3, Q("22 mm")),
    Sketcher.Constraint("DistanceX", -1, 1, 5, 3, Q("38.1 mm")),
    Sketcher.Constraint("DistanceX", 1, 3, 3, 3, Q("199.1 mm")),
    Sketcher.Constraint("DistanceY", 2, 3, 5, 3, Q("100.325 mm")),
    Sketcher.Constraint("DistanceY", 1, 3, -1, 1, Q("50.1625 mm")),
])
sketch11.setExpression("Constraints[12]", "Params.sketch11_diameter")
pad4 = body.newObject("PartDesign::Pad", "Pad003")
pad4.Profile = sketch11
pad4.setExpression("Length", "Params.pad4_length")
pad4.Reversed = True

sketch12 = body.newObject("Sketcher::SketchObject", "Sketch011")
sketch12.AttachmentSupport = (doc.getObject("XY_Plane"), [""])
sketch12.MapMode = "FlatFace"
sketch12.AttachmentOffset = App.Placement(V(0, 0, -3.55), App.Rotation())
sketch12.addGeometry([
    Part.Circle(V(99.55, 22, 0), V(0, 0, 1), 1.55),
    Part.Circle(V(99.55, -50.1625, 0), V(0, 0, 1), 1.55),
    Part.Circle(V(0, -50.1625, 0), V(0, 0, 1), 1.55),
    Part.Circle(V(38.1, 50.1625, 0), V(0, 0, 1), 1.55),
    Part.Circle(V(-38.1, 50.1625, 0), V(0, 0, 1), 1.55),
    Part.Circle(V(-99.55, 22, 0), V(0, 0, 1), 1.55),
    Part.Circle(V(-99.55, -50.1625, 0), V(0, 0, 1), 1.55),
], False)
sketch12.addConstraint([
    Sketcher.Constraint("Equal", 0, 1),
    Sketcher.Constraint("Equal", 1, 2),
    Sketcher.Constraint("Equal", 2, 3),
    Sketcher.Constraint("Equal", 3, 4),
    Sketcher.Constraint("Equal", 4, 5),
    Sketcher.Constraint("Equal", 5, 6),
    Sketcher.Constraint("Symmetric", 3, 3, 4, 3, -2),
    Sketcher.Constraint("Symmetric", 0, 3, 5, 3, -2),
    Sketcher.Constraint("Symmetric", 1, 3, 6, 3, -2),
    Sketcher.Constraint("PointOnObject", 2, 3, -2),
    Sketcher.Constraint("Horizontal", 1, 3, 2, 3),
    Sketcher.Constraint("Vertical", 0, 3, 1, 3),
    Sketcher.Constraint("Diameter", 0, Q("3.1 mm")),
    Sketcher.Constraint("DistanceY", -1, 1, 0, 3, Q("22 mm")),
    Sketcher.Constraint("DistanceX", -1, 1, 3, 3, Q("38.1 mm")),
    Sketcher.Constraint("DistanceX", 5, 3, 0, 3, Q("199.1 mm")),
    Sketcher.Constraint("DistanceY", 2, 3, 3, 3, Q("100.325 mm")),
    Sketcher.Constraint("DistanceY", 1, 3, -1, 1, Q("50.1625 mm")),
])
sketch12.setExpression("Constraints[12]", "Params.sketch12_diameter")
pocket8 = body.newObject("PartDesign::Pocket", "Pocket007")
pocket8.Profile = sketch12
pocket8.setExpression("Length", "Params.pocket8_length")

sketch13 = body.newObject("Sketcher::SketchObject", "Sketch012")
sketch13.AttachmentSupport = (doc.getObject("XZ_Plane"), [""])
sketch13.MapMode = "FlatFace"
sketch13.AttachmentOffset = App.Placement(V(0, 0, -53.7125), App.Rotation())
sketch13.addGeometry([
    Part.ArcOfCircle(Part.Circle(V(4.5, -8.05, 0), V(0, 0, 1), 1.75), math.radians(-0.000015), math.radians(90.000015)),
    Part.LineSegment(V(6.25, -8.05, 0), V(6.25, -11.05, 0)),
    Part.ArcOfCircle(Part.Circle(V(4.5, -11.05, 0), V(0, 0, 1), 1.75), math.radians(-90.000015), math.radians(0.000015)),
    Part.LineSegment(V(4.5, -12.8, 0), V(-4.5, -12.8, 0)),
    Part.ArcOfCircle(Part.Circle(V(-4.5, -11.05, 0), V(0, 0, 1), 1.75), math.radians(179.999985), math.radians(270.000015)),
    Part.LineSegment(V(-6.25, -11.05, 0), V(-6.25, -8.05, 0)),
    Part.ArcOfCircle(Part.Circle(V(-4.5, -8.05, 0), V(0, 0, 1), 1.75), math.radians(89.999985), math.radians(180.000015)),
    Part.LineSegment(V(-4.5, -6.3, 0), V(4.5, -6.3, 0)),
], False)
sketch13.addConstraint([
    Sketcher.Constraint("Tangent", 0, 1, 1, 1),
    Sketcher.Constraint("Tangent", 1, 2, 2, 2),
    Sketcher.Constraint("Tangent", 2, 1, 3, 1),
    Sketcher.Constraint("Tangent", 3, 2, 4, 2),
    Sketcher.Constraint("Tangent", 4, 1, 5, 1),
    Sketcher.Constraint("Tangent", 5, 2, 6, 2),
    Sketcher.Constraint("Tangent", 6, 1, 7, 1),
    Sketcher.Constraint("Tangent", 7, 2, 0, 2),
    Sketcher.Constraint("Vertical", 1),
    Sketcher.Constraint("Horizontal", 3),
    Sketcher.Constraint("Vertical", 5),
    Sketcher.Constraint("Horizontal", 7),
    Sketcher.Constraint("Equal", 0, 2),
    Sketcher.Constraint("Equal", 2, 4),
    Sketcher.Constraint("Equal", 4, 6),
    Sketcher.Constraint("DistanceX", 3, 2, 3, 1, Q("9 mm")),
    Sketcher.Constraint("DistanceY", 1, 2, 1, 1, Q("3 mm")),
    Sketcher.Constraint("Radius", 0, Q("1.75 mm")),
    Sketcher.Constraint("DistanceX", -1, 1, 0, 3, Q("4.5 mm")),
    Sketcher.Constraint("DistanceY", 2, 1, -1, 1, Q("12.8 mm")),
])
sketch13.setExpression("Constraints[15]", "Params.sketch13_width")
sketch13.setExpression("Constraints[16]", "Params.sketch13_height")
sketch13.setExpression("Constraints[17]", "Params.sketch13_radius")
pocket9 = body.newObject("PartDesign::Pocket", "Pocket008")
pocket9.Profile = sketch13
pocket9.setExpression("Length", "Params.pocket9_length")
pocket9.Reversed = True

sketch14 = body.newObject("Sketcher::SketchObject", "Sketch013")
sketch14.AttachmentSupport = (doc.getObject("XZ_Plane"), [""])
sketch14.MapMode = "FlatFace"
sketch14.AttachmentOffset = App.Placement(V(0, 0, -51.2125), App.Rotation())
sketch14.addGeometry([
    Part.ArcOfCircle(Part.Circle(V(-4.499998, -8.050007, 0), V(0, 0, 1), 1.750007), math.radians(90.000062), math.radians(121.002651)),
    Part.LineSegment(V(-4.5, -6.3, 0), V(4.5, -6.3, 0)),
    Part.ArcOfCircle(Part.Circle(V(4.499998, -8.050007, 0), V(0, 0, 1), 1.750007), math.radians(58.997349), math.radians(89.999938)),
    Part.LineSegment(V(5.401388, -6.55, 0), V(7.71753, -6.55, 0)),
    Part.ArcOfCircle(Part.Circle(V(4.5, -8.05, 0), V(0, 0, 1), 3.55), math.radians(24.994751), math.radians(89.999997)),
    Part.LineSegment(V(4.5, -4.5, 0), V(-4.5, -4.5, 0)),
    Part.ArcOfCircle(Part.Circle(V(-4.5, -8.05, 0), V(0, 0, 1), 3.55), math.radians(90.000003), math.radians(155.005249)),
    Part.LineSegment(V(-7.71753, -6.55, 0), V(-5.401388, -6.55, 0)),
], False)
sketch14.addConstraint([
    Sketcher.Constraint("Tangent", 0, 1, 1, 1),
    Sketcher.Constraint("Tangent", 1, 2, 2, 2),
    Sketcher.Constraint("Coincident", 2, 1, 3, 1),
    Sketcher.Constraint("Coincident", 3, 2, 4, 1),
    Sketcher.Constraint("Tangent", 4, 2, 5, 1),
    Sketcher.Constraint("Tangent", 5, 2, 6, 1),
    Sketcher.Constraint("Coincident", 6, 2, 7, 1),
    Sketcher.Constraint("Coincident", 7, 2, 0, 2),
    Sketcher.Constraint("Horizontal", 1),
    Sketcher.Constraint("Horizontal", 3),
    Sketcher.Constraint("Horizontal", 5),
    Sketcher.Constraint("Horizontal", 7),
    Sketcher.Constraint("Coincident", 4, 3, 2, 3),
    Sketcher.Constraint("Coincident", 6, 3, 0, 3),
    Sketcher.Constraint("Equal", 0, 2),
    Sketcher.Constraint("Symmetric", 3, 2, 6, 2, -2),
    Sketcher.Constraint("DistanceX", 1, 1, 1, 2, Q("9 mm")),
    Sketcher.Constraint("Radius", 4, Q("3.55 mm")),
    Sketcher.Constraint("DistanceY", 0, 1, -1, 1, Q("6.3 mm")),
    Sketcher.Constraint("DistanceY", 4, 2, -1, 1, Q("4.5 mm")),
    Sketcher.Constraint("DistanceY", 4, 3, 2, 1, Q("1.5 mm")),
])
sketch14.setExpression("Constraints[16]", "Params.sketch14_width")
sketch14.setExpression("Constraints[17]", "Params.sketch14_radius")
pad5 = body.newObject("PartDesign::Pad", "Pad004")
pad5.Profile = sketch14
pad5.setExpression("Length", "Params.pad5_length")

sketch15 = body.newObject("Sketcher::SketchObject", "Sketch014")
sketch15.AttachmentSupport = (doc.getObject("XY_Plane"), [""])
sketch15.MapMode = "FlatFace"
sketch15.AttachmentOffset = App.Placement(V(0, 0, -6.55), App.Rotation())
sketch15.addGeometry([
    Part.LineSegment(V(-5.401388, 49.7125, 0), V(5.401388, 49.7125, 0)),
    Part.LineSegment(V(5.401388, 49.7125, 0), V(5.401388, 50.7125, 0)),
    Part.LineSegment(V(5.401388, 50.7125, 0), V(-5.401388, 50.7125, 0)),
    Part.LineSegment(V(-5.401388, 50.7125, 0), V(-5.401388, 49.7125, 0)),
], False)
sketch15.addConstraint([
    Sketcher.Constraint("Coincident", 0, 2, 1, 1),
    Sketcher.Constraint("Coincident", 1, 2, 2, 1),
    Sketcher.Constraint("Coincident", 2, 2, 3, 1),
    Sketcher.Constraint("Coincident", 3, 2, 0, 1),
    Sketcher.Constraint("Horizontal", 0),
    Sketcher.Constraint("Vertical", 1),
    Sketcher.Constraint("Horizontal", 2),
    Sketcher.Constraint("Vertical", 3),
    Sketcher.Constraint("DistanceY", 1, 1, 1, 2, Q("1 mm")),
    Sketcher.Constraint("DistanceY", -1, 1, 0, 2, Q("49.7125 mm")),
    Sketcher.Constraint("DistanceX", 0, 1, 0, 2, Q("10.802776 mm")),
    Sketcher.Constraint("DistanceX", -1, 1, 0, 2, Q("5.401388 mm")),
])
sketch15.setExpression("Constraints[8]", "Params.sketch15_height")
pad6 = body.newObject("PartDesign::Pad", "Pad005")
pad6.Profile = sketch15
pad6.setExpression("Length", "Params.pad6_length")

doc.recompute()
